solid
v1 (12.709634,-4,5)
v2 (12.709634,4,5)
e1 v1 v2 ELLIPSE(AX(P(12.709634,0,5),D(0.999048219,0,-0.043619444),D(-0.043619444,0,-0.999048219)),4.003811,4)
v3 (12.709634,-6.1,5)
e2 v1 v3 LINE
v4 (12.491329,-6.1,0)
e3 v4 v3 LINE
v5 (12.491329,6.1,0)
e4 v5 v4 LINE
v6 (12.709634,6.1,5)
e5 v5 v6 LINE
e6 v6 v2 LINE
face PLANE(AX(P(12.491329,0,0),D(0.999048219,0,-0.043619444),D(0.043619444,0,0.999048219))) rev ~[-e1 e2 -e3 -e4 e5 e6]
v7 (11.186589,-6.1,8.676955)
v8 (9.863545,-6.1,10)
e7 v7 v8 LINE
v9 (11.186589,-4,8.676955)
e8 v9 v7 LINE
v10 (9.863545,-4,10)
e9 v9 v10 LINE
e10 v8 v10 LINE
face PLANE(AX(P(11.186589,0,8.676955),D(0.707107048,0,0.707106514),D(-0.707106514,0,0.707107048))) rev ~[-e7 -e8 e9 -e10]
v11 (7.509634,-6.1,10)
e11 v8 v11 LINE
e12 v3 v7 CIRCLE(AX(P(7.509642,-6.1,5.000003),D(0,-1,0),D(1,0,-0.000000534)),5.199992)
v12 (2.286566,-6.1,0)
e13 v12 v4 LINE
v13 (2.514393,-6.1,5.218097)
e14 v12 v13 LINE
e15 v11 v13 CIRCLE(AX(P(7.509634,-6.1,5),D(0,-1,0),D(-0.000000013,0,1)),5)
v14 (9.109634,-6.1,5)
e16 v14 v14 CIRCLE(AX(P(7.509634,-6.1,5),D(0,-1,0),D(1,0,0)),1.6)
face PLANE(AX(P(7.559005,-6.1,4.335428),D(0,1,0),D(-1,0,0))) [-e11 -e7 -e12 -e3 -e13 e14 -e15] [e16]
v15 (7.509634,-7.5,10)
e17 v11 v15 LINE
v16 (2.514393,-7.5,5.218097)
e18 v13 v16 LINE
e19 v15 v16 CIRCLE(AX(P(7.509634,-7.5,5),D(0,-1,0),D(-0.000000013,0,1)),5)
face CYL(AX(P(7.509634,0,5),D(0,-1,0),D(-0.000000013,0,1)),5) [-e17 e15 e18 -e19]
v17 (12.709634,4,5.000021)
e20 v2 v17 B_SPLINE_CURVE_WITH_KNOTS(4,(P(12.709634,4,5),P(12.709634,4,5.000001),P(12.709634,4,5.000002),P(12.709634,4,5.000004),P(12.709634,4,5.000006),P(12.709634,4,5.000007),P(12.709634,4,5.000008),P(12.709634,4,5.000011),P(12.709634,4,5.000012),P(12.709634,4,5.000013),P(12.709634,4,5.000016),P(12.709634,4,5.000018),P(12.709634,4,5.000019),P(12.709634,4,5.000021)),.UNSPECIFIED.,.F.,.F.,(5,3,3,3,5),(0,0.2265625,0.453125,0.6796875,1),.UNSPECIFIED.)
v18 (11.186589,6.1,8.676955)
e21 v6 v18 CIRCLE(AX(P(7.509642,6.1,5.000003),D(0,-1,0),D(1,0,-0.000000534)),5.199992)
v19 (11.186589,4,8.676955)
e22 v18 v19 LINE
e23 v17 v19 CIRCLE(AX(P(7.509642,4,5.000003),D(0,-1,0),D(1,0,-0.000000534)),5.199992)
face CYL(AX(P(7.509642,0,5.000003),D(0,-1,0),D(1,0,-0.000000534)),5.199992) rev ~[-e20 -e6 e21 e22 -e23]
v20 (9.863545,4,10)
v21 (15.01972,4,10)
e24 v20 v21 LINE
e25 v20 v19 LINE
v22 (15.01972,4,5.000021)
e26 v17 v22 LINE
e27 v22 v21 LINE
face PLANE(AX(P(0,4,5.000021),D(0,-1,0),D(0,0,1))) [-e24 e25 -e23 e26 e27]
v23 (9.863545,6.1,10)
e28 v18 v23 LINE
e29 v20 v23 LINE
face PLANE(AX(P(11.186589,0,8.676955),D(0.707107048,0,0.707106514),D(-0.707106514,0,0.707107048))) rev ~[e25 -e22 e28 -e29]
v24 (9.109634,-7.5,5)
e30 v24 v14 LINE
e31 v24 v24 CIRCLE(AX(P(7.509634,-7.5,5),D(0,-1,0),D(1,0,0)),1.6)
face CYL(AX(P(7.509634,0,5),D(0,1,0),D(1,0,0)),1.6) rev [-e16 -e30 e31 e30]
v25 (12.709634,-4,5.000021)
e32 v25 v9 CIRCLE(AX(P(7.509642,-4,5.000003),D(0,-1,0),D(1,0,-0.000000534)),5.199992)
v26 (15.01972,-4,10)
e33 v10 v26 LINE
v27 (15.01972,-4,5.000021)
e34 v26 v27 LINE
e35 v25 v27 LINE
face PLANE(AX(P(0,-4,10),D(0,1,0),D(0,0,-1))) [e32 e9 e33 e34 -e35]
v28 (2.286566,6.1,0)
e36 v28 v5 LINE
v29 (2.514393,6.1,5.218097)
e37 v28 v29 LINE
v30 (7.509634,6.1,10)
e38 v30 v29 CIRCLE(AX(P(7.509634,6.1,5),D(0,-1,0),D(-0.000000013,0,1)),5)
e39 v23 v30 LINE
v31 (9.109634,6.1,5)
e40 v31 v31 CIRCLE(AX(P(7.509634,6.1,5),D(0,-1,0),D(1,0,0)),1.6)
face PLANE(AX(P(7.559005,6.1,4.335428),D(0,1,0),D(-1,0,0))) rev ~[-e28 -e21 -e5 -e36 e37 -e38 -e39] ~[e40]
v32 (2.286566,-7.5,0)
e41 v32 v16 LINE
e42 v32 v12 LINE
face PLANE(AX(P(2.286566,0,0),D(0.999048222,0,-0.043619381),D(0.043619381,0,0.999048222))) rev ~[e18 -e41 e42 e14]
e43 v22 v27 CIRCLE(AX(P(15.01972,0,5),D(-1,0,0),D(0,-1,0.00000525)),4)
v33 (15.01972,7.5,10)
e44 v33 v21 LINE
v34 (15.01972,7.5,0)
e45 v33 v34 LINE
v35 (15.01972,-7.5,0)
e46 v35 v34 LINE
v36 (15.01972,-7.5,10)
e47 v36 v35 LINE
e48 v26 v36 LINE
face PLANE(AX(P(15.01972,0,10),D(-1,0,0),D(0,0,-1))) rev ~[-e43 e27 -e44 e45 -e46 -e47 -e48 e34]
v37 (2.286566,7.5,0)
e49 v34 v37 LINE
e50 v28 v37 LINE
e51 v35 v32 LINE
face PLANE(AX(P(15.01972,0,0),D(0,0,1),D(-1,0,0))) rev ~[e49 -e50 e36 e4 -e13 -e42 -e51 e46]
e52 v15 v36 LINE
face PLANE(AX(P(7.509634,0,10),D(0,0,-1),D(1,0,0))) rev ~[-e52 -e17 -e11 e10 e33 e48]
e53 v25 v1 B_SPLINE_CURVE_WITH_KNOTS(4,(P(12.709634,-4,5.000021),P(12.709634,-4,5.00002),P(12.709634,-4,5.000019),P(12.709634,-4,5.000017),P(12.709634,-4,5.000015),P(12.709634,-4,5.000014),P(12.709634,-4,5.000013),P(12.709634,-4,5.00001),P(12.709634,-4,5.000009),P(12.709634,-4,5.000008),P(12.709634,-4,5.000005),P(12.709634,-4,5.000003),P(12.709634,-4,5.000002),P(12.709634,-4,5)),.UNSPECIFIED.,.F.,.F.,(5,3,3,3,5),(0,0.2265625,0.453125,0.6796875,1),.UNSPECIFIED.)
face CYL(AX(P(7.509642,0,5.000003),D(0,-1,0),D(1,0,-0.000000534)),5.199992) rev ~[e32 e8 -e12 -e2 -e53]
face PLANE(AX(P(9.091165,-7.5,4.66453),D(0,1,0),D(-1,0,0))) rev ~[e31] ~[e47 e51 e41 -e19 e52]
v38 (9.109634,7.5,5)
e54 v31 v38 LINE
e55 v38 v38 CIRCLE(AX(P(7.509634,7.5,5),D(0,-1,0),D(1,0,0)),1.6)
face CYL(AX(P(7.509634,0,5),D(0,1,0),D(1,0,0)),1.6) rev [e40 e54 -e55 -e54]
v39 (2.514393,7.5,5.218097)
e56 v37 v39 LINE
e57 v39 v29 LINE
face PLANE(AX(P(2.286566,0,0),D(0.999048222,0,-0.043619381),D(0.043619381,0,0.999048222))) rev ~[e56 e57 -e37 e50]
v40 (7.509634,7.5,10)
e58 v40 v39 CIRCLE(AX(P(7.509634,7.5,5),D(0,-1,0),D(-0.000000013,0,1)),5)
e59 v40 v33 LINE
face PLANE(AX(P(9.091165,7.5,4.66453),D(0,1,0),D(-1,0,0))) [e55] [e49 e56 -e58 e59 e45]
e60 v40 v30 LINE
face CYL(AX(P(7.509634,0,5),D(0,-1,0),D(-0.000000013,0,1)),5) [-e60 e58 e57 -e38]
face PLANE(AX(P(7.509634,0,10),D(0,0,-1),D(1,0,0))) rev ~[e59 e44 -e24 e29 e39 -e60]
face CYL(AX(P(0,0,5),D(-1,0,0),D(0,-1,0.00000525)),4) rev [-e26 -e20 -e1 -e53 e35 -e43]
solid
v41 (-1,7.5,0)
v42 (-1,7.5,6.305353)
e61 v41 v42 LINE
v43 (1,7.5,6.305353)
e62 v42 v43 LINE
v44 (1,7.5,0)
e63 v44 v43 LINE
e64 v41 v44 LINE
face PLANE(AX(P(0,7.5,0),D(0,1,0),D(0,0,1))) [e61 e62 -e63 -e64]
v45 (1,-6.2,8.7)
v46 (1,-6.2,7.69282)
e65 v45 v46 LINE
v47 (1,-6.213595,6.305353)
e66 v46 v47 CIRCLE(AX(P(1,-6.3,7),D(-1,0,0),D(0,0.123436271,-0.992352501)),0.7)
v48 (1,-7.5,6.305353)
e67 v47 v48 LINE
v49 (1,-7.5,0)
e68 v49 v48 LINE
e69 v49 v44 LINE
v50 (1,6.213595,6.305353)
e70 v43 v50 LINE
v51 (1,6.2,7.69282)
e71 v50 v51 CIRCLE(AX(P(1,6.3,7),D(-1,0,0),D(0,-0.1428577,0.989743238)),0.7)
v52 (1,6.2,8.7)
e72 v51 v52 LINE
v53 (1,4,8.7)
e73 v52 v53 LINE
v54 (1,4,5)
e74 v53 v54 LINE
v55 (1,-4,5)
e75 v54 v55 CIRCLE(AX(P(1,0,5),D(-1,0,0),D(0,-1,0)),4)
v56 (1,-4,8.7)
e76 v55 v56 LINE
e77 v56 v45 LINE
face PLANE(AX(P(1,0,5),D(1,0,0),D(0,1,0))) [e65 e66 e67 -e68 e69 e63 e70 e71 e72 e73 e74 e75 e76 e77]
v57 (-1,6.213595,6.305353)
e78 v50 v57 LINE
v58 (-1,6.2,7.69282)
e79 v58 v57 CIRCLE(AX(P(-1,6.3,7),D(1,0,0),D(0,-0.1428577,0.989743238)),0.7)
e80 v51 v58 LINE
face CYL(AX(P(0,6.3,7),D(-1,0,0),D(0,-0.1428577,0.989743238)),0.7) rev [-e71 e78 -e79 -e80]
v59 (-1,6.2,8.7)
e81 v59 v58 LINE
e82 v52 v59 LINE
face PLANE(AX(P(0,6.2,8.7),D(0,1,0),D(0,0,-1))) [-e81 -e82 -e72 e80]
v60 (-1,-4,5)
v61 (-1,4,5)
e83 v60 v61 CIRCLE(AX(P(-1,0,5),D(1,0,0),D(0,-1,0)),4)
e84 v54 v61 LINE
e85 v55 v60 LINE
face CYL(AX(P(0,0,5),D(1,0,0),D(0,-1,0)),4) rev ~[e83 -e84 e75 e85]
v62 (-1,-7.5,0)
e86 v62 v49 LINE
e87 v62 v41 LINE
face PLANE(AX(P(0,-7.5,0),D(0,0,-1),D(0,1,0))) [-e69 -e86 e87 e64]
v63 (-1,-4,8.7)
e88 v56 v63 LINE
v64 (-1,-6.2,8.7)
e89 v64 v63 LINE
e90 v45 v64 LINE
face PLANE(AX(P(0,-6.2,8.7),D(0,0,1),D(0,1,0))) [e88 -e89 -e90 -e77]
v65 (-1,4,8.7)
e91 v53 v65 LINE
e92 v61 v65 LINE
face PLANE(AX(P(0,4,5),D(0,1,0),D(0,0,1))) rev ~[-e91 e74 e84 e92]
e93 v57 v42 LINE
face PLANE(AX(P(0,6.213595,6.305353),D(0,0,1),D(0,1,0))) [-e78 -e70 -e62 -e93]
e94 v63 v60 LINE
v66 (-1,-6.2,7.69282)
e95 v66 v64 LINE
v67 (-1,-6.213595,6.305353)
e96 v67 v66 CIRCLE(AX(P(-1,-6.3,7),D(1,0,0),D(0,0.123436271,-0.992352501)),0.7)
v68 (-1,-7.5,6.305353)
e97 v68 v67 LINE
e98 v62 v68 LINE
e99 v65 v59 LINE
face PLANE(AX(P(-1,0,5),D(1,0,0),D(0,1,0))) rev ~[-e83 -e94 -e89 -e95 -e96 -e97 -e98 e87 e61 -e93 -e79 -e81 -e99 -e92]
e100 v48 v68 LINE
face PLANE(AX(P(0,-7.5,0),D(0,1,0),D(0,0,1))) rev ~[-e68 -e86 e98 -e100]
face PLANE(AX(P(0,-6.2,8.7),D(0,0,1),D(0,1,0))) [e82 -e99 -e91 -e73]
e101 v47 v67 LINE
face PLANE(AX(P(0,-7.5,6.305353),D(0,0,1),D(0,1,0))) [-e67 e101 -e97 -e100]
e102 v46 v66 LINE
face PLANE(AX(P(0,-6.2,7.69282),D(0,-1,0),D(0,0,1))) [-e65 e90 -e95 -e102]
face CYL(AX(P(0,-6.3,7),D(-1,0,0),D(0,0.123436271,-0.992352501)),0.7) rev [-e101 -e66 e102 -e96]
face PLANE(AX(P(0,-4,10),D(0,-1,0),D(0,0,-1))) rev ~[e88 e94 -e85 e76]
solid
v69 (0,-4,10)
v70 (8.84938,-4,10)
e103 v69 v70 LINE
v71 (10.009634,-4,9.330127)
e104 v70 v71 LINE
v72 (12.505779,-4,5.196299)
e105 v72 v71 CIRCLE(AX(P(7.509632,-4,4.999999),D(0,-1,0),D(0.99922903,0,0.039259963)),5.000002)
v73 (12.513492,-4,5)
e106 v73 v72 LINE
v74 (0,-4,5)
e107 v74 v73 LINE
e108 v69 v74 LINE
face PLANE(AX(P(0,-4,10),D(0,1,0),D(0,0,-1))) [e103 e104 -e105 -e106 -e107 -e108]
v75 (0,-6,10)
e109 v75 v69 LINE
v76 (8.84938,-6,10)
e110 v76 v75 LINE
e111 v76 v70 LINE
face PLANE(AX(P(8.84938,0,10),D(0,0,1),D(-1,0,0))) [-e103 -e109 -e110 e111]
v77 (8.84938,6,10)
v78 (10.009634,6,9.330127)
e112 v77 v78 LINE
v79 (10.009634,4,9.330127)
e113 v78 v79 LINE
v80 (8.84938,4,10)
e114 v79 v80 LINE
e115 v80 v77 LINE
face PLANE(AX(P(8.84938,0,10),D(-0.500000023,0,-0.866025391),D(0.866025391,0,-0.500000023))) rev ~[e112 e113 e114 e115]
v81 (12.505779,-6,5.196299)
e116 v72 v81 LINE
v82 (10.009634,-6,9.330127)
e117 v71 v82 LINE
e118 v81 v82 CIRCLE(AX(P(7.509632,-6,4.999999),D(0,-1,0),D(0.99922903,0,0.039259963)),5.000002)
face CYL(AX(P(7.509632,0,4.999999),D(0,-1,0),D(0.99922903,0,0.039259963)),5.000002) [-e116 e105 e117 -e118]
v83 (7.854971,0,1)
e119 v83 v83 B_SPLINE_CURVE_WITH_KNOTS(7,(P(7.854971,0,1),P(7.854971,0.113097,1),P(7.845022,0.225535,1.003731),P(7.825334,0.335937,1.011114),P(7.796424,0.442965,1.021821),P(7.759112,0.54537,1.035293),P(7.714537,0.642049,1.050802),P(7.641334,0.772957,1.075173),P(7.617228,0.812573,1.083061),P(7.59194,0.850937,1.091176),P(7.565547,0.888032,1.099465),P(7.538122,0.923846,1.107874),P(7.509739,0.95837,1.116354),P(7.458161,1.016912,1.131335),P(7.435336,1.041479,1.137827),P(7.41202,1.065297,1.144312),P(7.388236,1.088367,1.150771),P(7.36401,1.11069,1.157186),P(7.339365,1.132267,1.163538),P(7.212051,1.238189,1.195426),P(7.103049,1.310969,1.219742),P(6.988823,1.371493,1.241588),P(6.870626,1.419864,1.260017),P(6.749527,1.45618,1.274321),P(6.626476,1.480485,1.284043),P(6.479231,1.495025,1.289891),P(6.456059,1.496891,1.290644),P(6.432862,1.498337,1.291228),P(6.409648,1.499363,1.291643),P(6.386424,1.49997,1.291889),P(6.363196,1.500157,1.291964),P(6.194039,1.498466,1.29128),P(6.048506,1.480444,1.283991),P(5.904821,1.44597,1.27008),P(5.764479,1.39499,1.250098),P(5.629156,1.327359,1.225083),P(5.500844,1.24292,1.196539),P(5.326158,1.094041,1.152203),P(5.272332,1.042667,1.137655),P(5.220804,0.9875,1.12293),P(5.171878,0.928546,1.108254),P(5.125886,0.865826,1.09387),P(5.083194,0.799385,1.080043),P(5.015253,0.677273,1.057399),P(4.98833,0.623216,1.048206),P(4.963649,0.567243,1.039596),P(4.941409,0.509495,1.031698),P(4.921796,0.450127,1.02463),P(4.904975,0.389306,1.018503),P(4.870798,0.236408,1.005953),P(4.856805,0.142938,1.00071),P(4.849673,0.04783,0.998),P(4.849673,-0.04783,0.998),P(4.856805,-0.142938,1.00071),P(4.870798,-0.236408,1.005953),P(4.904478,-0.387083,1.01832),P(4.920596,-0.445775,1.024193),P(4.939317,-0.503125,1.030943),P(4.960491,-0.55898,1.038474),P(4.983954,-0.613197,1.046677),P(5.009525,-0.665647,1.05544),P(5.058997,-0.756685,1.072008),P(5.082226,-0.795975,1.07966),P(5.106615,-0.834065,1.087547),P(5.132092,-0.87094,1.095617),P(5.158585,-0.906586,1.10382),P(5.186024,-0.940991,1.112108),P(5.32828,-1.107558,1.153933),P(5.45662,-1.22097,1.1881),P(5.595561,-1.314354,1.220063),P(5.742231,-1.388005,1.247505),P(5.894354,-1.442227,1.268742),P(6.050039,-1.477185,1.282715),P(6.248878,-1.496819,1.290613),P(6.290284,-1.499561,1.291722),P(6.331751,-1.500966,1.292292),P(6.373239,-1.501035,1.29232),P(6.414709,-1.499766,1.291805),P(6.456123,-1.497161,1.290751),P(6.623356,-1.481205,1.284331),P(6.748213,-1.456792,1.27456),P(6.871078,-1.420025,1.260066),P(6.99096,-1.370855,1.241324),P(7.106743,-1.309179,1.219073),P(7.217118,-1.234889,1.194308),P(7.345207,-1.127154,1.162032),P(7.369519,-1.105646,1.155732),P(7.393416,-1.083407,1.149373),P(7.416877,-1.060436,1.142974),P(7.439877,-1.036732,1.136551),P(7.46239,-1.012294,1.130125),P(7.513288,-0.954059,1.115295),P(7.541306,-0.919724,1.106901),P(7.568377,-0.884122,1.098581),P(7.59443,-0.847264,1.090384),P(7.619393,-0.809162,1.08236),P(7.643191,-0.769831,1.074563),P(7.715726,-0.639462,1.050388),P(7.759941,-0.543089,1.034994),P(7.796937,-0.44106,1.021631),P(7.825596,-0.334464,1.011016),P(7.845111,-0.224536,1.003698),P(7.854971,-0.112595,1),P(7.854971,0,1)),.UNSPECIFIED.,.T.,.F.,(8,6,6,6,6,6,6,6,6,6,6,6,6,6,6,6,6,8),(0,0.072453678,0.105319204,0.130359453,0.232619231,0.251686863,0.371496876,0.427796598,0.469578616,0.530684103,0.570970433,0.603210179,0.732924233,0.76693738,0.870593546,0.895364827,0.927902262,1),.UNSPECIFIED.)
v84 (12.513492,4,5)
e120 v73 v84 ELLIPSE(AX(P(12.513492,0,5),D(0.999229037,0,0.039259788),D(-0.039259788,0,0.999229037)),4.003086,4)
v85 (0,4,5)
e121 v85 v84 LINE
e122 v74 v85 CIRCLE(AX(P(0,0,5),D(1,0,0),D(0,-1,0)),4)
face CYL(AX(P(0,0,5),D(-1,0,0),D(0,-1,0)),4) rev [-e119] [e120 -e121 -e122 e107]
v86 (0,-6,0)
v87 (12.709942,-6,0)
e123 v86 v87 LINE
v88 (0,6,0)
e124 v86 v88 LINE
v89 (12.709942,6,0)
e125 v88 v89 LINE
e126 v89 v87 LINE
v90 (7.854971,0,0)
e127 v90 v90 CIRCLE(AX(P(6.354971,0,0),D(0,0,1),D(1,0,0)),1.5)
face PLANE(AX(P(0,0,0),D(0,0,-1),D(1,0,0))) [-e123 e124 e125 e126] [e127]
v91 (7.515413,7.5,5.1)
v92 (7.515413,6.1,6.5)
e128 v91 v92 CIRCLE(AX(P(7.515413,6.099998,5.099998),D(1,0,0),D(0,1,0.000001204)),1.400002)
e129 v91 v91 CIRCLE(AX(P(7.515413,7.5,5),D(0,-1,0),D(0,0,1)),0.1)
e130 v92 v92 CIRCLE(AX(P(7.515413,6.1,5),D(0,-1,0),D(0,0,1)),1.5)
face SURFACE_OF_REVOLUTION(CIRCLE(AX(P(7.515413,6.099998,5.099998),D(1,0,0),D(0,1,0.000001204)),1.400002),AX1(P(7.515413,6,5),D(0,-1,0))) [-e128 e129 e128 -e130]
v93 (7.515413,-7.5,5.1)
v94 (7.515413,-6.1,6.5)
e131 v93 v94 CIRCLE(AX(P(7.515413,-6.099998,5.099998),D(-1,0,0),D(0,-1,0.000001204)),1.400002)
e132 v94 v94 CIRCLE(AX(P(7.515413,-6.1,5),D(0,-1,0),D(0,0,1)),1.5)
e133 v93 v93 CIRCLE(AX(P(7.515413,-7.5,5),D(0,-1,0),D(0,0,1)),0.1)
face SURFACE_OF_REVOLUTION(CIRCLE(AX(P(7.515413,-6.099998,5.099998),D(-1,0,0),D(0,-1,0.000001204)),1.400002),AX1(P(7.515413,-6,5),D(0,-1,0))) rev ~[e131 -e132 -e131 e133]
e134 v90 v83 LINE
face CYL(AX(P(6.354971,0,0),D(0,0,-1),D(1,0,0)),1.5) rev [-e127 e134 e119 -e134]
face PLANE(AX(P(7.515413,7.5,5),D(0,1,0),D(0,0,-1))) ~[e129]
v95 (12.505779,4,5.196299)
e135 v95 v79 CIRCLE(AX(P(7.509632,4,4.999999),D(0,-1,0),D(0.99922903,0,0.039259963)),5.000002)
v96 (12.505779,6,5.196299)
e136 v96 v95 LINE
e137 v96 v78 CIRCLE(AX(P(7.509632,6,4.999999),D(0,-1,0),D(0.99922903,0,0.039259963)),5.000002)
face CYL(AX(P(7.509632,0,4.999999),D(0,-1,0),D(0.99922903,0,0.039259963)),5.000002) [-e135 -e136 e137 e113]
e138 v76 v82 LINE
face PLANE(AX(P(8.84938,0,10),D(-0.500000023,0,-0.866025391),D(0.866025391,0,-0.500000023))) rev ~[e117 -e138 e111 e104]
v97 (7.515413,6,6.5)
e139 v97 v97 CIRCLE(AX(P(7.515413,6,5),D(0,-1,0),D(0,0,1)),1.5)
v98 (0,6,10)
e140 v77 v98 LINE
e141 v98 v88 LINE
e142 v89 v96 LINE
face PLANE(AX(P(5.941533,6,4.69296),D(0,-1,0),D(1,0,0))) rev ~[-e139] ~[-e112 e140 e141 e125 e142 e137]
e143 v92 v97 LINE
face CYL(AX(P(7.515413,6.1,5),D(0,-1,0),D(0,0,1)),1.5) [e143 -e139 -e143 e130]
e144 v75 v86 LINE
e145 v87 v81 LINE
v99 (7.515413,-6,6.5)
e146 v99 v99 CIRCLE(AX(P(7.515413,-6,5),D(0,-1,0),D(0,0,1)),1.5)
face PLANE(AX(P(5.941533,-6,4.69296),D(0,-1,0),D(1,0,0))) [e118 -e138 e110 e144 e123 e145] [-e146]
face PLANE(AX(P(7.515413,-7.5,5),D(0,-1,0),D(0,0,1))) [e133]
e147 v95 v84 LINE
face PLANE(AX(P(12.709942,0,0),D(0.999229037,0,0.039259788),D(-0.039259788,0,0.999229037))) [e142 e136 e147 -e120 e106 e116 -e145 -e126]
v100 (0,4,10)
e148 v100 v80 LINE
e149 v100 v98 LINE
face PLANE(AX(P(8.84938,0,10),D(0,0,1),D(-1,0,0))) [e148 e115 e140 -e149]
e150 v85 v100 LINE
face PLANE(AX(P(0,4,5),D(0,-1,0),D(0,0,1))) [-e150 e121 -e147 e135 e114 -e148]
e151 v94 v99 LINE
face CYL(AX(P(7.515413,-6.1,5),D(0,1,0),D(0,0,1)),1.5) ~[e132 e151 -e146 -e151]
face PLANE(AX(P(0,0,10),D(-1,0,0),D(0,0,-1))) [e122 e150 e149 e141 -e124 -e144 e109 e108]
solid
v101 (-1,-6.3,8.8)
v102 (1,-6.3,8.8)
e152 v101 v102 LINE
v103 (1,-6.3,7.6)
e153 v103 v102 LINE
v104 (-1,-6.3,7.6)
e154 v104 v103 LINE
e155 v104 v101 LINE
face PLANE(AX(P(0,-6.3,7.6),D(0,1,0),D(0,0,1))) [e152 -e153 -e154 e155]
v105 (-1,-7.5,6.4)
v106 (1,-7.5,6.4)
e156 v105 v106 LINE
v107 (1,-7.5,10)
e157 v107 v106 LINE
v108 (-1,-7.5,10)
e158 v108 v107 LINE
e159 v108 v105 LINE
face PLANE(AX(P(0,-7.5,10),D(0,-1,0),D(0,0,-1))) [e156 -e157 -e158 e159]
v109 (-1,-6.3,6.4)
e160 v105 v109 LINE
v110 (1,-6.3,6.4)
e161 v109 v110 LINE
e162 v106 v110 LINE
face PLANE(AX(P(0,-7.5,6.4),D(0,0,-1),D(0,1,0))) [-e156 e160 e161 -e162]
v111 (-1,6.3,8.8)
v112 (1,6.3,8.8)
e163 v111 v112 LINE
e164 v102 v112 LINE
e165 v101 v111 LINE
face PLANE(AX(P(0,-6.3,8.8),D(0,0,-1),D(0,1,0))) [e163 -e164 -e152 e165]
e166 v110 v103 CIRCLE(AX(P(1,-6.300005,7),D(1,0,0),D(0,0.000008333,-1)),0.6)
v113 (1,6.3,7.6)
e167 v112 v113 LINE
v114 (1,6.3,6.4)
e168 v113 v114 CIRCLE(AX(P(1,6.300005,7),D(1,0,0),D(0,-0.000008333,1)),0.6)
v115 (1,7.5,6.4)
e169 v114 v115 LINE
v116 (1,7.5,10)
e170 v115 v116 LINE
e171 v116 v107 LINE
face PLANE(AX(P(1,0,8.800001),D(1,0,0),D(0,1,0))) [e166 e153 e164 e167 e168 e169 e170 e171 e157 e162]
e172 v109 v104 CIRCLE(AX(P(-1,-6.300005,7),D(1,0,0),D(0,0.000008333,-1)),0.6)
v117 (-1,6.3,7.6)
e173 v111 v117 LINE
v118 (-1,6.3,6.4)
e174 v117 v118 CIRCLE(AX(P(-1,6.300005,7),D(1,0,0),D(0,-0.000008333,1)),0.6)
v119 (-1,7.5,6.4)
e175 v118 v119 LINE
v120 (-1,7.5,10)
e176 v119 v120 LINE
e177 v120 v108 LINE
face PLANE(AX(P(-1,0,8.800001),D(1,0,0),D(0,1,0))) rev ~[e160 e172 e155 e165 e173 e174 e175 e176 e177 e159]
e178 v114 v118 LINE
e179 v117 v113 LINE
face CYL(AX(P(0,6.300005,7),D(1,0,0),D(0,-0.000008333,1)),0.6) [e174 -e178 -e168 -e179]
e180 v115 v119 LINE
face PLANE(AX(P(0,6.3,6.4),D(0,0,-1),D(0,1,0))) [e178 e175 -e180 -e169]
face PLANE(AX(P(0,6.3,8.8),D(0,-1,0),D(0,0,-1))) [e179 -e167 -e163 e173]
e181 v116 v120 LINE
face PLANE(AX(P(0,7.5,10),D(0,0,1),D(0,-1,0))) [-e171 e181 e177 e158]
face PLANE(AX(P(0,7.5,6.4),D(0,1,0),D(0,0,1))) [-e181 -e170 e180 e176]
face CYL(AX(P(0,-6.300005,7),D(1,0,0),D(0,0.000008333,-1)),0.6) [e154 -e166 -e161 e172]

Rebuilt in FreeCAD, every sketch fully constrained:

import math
import FreeCAD as App
import Part
import Sketcher
Q = App.Units.Quantity


def add_polygon(sketch, points):
    """Adds a closed chain of lines whose ends are joined by coincident constraints."""
    first, n = sketch.GeometryCount, len(points)
    for a, b in zip(points, points[1:] + points[:1]):
        sketch.addGeometry(Part.LineSegment(App.Vector(*a, 0), App.Vector(*b, 0)), False)
    for i in range(n):
        sketch.addConstraint(Sketcher.Constraint("Coincident", first + i, 2, first + (i + 1) % n, 1))

doc = App.newDocument("Part")
params = doc.addObject("Spreadsheet::Sheet", "Params")
for row, (alias, value) in enumerate([
    ("sketch1_radius", "5.000002 mm"),
    ("sketch1_height", "10 mm"),
    ("pad1_length", "12 mm"),
    ("sketch2_radius", "1.400002 mm"),
    ("sketch2_width", "1.5 mm"),
    ("revolution_angle", "360 deg"),
    ("sketch3_radius", "4 mm"),
    ("sketch3_height", "5 mm"),
    ("sketch4_diameter", "3 mm"),
    ("sketch5_radius", "5 mm"),
    ("sketch5_diameter", "3.2 mm"),
    ("sketch5_height", "10 mm"),
    ("pad2_length", "15 mm"),
    ("sketch6_radius", "5 mm"),
    ("sketch6_diameter", "3.2 mm"),
    ("pocket3_length", "12.2 mm"),
    ("sketch7_radius", "4 mm"),
    ("sketch8_radius", "0.6 mm"),
    ("sketch8_width", "15 mm"),
    ("sketch8_width2", "1.2 mm"),
    ("sketch8_height", "3.6 mm"),
    ("pad3_length", "2 mm"),
    ("sketch9_width", "15 mm"),
    ("sketch9_height", "10 mm"),
    ("pad4_length", "2 mm"),
    ("sketch10_radius", "0.7 mm"),
    ("sketch10_width", "15 mm"),
    ("sketch10_width2", "12.4 mm"),
    ("sketch11_radius", "4 mm"),
    ("sketch11_height", "5 mm"),
], start=1):
    params.set(f"A{row}", alias)
    params.set(f"B{row}", "=" + value)
    params.setAlias(f"B{row}", alias)

body = doc.addObject("PartDesign::Body", "Body")

# Sketch on XZ plane
sketch1 = doc.addObject("Sketcher::SketchObject", "Sketch")
body.addObject(sketch1)
sketch1.AttachmentSupport = (doc.XZ_Plane, [""])
sketch1.MapMode = "FlatFace"
sketch1.addGeometry(Part.LineSegment(App.Vector(0, 0, 0), App.Vector(12.7, 0, 0)), False)
sketch1.addGeometry(Part.LineSegment(App.Vector(12.7, 0, 0), App.Vector(12.5, 5.2, 0)), False)
sketch1.addGeometry(Part.ArcOfCircle(Part.Circle(App.Vector(7.5, 5, 0), App.Vector(0, 0, 1), 5), math.radians(2), math.radians(60)), False)
sketch1.addGeometry(Part.LineSegment(App.Vector(10, 9.3, 0), App.Vector(8.8, 10, 0)), False)
sketch1.addGeometry(Part.LineSegment(App.Vector(8.8, 10, 0), App.Vector(0, 10, 0)), False)
sketch1.addGeometry(Part.LineSegment(App.Vector(0, 10, 0), App.Vector(0, 0, 0)), False)
sketch1.addConstraint(Sketcher.Constraint("Coincident", 0, 2, 1, 1))
sketch1.addConstraint(Sketcher.Constraint("Tangent", 1, 2, 2, 1))
sketch1.addConstraint(Sketcher.Constraint("Tangent", 2, 2, 3, 1))
sketch1.addConstraint(Sketcher.Constraint("Coincident", 3, 2, 4, 1))
sketch1.addConstraint(Sketcher.Constraint("Coincident", 4, 2, 5, 1))
sketch1.addConstraint(Sketcher.Constraint("Coincident", 5, 2, 0, 1))
sketch1.addConstraint(Sketcher.Constraint("Horizontal", 0))
sketch1.addConstraint(Sketcher.Constraint("Horizontal", 4))
sketch1.addConstraint(Sketcher.Constraint("Vertical", 5))
sketch1.addConstraint(Sketcher.Constraint("Coincident", 5, 2, -1, 1))
sketch1.addConstraint(Sketcher.Constraint("Radius", 2, 5.000002))
sketch1.addConstraint(Sketcher.Constraint("DistanceY", 5, 2, 5, 1, 10.0))
sketch1.addConstraint(Sketcher.Constraint("Angle", 3, Q("149.999998 deg")))
sketch1.addConstraint(Sketcher.Constraint("DistanceY", -1, 1, 2, 3, 4.999999))
sketch1.addConstraint(Sketcher.Constraint("Angle", 1, Q("92.249998 deg")))
sketch1.addConstraint(Sketcher.Constraint("DistanceX", 4, 2, 4, 1, 8.84938))
sketch1.setExpression("Constraints[10]", "Params.sketch1_radius")
sketch1.setExpression("Constraints[11]", "Params.sketch1_height")
pad1 = doc.addObject("PartDesign::Pad", "Pad")
body.addObject(pad1)
pad1.Profile = sketch1
pad1.setExpression("Length", "Params.pad1_length")
pad1.Midplane = True

# Sketch on YZ plane
sketch2 = doc.addObject("Sketcher::SketchObject", "Sketch001")
body.addObject(sketch2)
sketch2.AttachmentSupport = (doc.YZ_Plane, [""])
sketch2.MapMode = "FlatFace"
sketch2.AttachmentOffset = App.Placement(App.Vector(0, 0, 7.515413), App.Rotation())
sketch2.addGeometry(Part.LineSegment(App.Vector(-6, 5, 0), App.Vector(-7.5, 5, 0)), False)
sketch2.addGeometry(Part.LineSegment(App.Vector(-7.5, 5, 0), App.Vector(-7.5, 5.1, 0)), False)
sketch2.addGeometry(Part.ArcOfCircle(Part.Circle(App.Vector(-6.1, 5.1, 0), App.Vector(0, 0, 1), 1.4), math.radians(90), math.radians(180)), False)
sketch2.addGeometry(Part.LineSegment(App.Vector(-6.1, 6.5, 0), App.Vector(-6, 6.5, 0)), False)
sketch2.addGeometry(Part.LineSegment(App.Vector(-6, 6.5, 0), App.Vector(-6, 5, 0)), False)
sketch2.addGeometry(Part.LineSegment(App.Vector(-6, 5, 0), App.Vector(-7.5, 5, 0)), True)  # axis
sketch2.addConstraint(Sketcher.Constraint("Coincident", 0, 2, 1, 1))
sketch2.addConstraint(Sketcher.Constraint("Tangent", 1, 2, 2, 2))
sketch2.addConstraint(Sketcher.Constraint("Tangent", 2, 1, 3, 1))
sketch2.addConstraint(Sketcher.Constraint("Coincident", 3, 2, 4, 1))
sketch2.addConstraint(Sketcher.Constraint("Coincident", 4, 2, 0, 1))
sketch2.addConstraint(Sketcher.Constraint("Horizontal", 0))
sketch2.addConstraint(Sketcher.Constraint("Vertical", 1))
sketch2.addConstraint(Sketcher.Constraint("Horizontal", 3))
sketch2.addConstraint(Sketcher.Constraint("Vertical", 4))
sketch2.addConstraint(Sketcher.Constraint("Horizontal", 5))
sketch2.addConstraint(Sketcher.Constraint("Coincident", 5, 1, 4, 2))
sketch2.addConstraint(Sketcher.Constraint("Vertical", 1, 2, 5, 2))
sketch2.addConstraint(Sketcher.Constraint("Equal", 3, 1))
sketch2.addConstraint(Sketcher.Constraint("Radius", 2, 1.400002))
sketch2.addConstraint(Sketcher.Constraint("DistanceX", 0, 2, 0, 1, 1.5))
sketch2.addConstraint(Sketcher.Constraint("DistanceY", -1, 1, 0, 2, 5.0))
sketch2.addConstraint(Sketcher.Constraint("DistanceX", 3, 2, -1, 1, 6.0))
sketch2.setExpression("Constraints[13]", "Params.sketch2_radius")
sketch2.setExpression("Constraints[14]", "Params.sketch2_width")
revolution = doc.addObject("PartDesign::Revolution", "Revolution")
body.addObject(revolution)
revolution.Profile = sketch2
revolution.ReferenceAxis = (sketch2, ["Axis0"])
revolution.setExpression("Angle", "Params.revolution_angle")
doc.recompute()

mirrored = doc.addObject("PartDesign::Mirrored", "Mirrored")
body.addObject(mirrored)
mirrored.Originals = [revolution]
mirrored.MirrorPlane = (doc.XZ_Plane, [""])
body.Tip = mirrored

# Sketch on YZ plane
sketch3 = doc.addObject("Sketcher::SketchObject", "Sketch002")
body.addObject(sketch3)
sketch3.AttachmentSupport = (doc.YZ_Plane, [""])
sketch3.MapMode = "FlatFace"
sketch3.addGeometry(Part.ArcOfCircle(Part.Circle(App.Vector(0, 5, 0), App.Vector(0, 0, 1), 4), math.radians(180), math.radians(360)), False)
sketch3.addGeometry(Part.LineSegment(App.Vector(4, 5, 0), App.Vector(4, 10, 0)), False)
sketch3.addGeometry(Part.LineSegment(App.Vector(4, 10, 0), App.Vector(-4, 10, 0)), False)
sketch3.addGeometry(Part.LineSegment(App.Vector(-4, 10, 0), App.Vector(-4, 5, 0)), False)
sketch3.addConstraint(Sketcher.Constraint("Tangent", 0, 2, 1, 1))
sketch3.addConstraint(Sketcher.Constraint("Coincident", 1, 2, 2, 1))
sketch3.addConstraint(Sketcher.Constraint("Coincident", 2, 2, 3, 1))
sketch3.addConstraint(Sketcher.Constraint("Tangent", 3, 2, 0, 1))
sketch3.addConstraint(Sketcher.Constraint("Vertical", 1))
sketch3.addConstraint(Sketcher.Constraint("Horizontal", 2))
sketch3.addConstraint(Sketcher.Constraint("Vertical", 3))
sketch3.addConstraint(Sketcher.Constraint("PointOnObject", 0, 3, -2))
sketch3.addConstraint(Sketcher.Constraint("Radius", 0, 4.0))
sketch3.addConstraint(Sketcher.Constraint("DistanceY", 1, 1, 1, 2, 5.0))
sketch3.addConstraint(Sketcher.Constraint("DistanceY", -1, 1, 0, 3, 5.0))
sketch3.setExpression("Constraints[8]", "Params.sketch3_radius")
sketch3.setExpression("Constraints[9]", "Params.sketch3_height")
pocket1 = doc.addObject("PartDesign::Pocket", "Pocket")
body.addObject(pocket1)
pocket1.Profile = sketch3
pocket1.Type = "ThroughAll"
pocket1.Midplane = True

# Sketch on XY plane
sketch4 = doc.addObject("Sketcher::SketchObject", "Sketch003")
body.addObject(sketch4)
sketch4.AttachmentSupport = (doc.XY_Plane, [""])
sketch4.MapMode = "FlatFace"
sketch4.addGeometry(Part.Circle(App.Vector(6.4, 0, 0), App.Vector(0, 0, 1), 1.5), False)
sketch4.addConstraint(Sketcher.Constraint("PointOnObject", 0, 3, -1))
sketch4.addConstraint(Sketcher.Constraint("Diameter", 0, 3.0))
sketch4.addConstraint(Sketcher.Constraint("DistanceX", -1, 1, 0, 3, 6.354971))
sketch4.setExpression("Constraints[1]", "Params.sketch4_diameter")
pocket2 = doc.addObject("PartDesign::Pocket", "Pocket001")
body.addObject(pocket2)
pocket2.Profile = sketch4
pocket2.Type = "ThroughAll"
pocket2.Midplane = True
body2 = doc.addObject("PartDesign::Body", "Body001")

# Sketch on XZ plane
sketch5 = doc.addObject("Sketcher::SketchObject", "Sketch004")
body2.addObject(sketch5)
sketch5.AttachmentSupport = (doc.getObject("XZ_Plane001"), [""])
sketch5.MapMode = "FlatFace"
sketch5.addGeometry(Part.LineSegment(App.Vector(15, 0, 0), App.Vector(15, 10, 0)), False)
sketch5.addGeometry(Part.LineSegment(App.Vector(15, 10, 0), App.Vector(7.5, 10, 0)), False)
sketch5.addGeometry(Part.ArcOfCircle(Part.Circle(App.Vector(7.5, 5, 0), App.Vector(0, 0, 1), 5), math.radians(90), math.radians(177)), False)
sketch5.addGeometry(Part.LineSegment(App.Vector(2.5, 5.2, 0), App.Vector(2.3, 0, 0)), False)
sketch5.addGeometry(Part.LineSegment(App.Vector(2.3, 0, 0), App.Vector(15, 0, 0)), False)
sketch5.addGeometry(Part.Circle(App.Vector(7.5, 5, 0), App.Vector(0, 0, 1), 1.6), False)
sketch5.addConstraint(Sketcher.Constraint("Coincident", 0, 2, 1, 1))
sketch5.addConstraint(Sketcher.Constraint("Tangent", 1, 2, 2, 1))
sketch5.addConstraint(Sketcher.Constraint("Tangent", 2, 2, 3, 1))
sketch5.addConstraint(Sketcher.Constraint("Coincident", 3, 2, 4, 1))
sketch5.addConstraint(Sketcher.Constraint("Coincident", 4, 2, 0, 1))
sketch5.addConstraint(Sketcher.Constraint("Vertical", 0))
sketch5.addConstraint(Sketcher.Constraint("Horizontal", 1))
sketch5.addConstraint(Sketcher.Constraint("Horizontal", 4))
sketch5.addConstraint(Sketcher.Constraint("Coincident", 5, 3, 2, 3))
sketch5.addConstraint(Sketcher.Constraint("PointOnObject", 3, 2, -1))
sketch5.addConstraint(Sketcher.Constraint("Radius", 2, 5.0))
sketch5.addConstraint(Sketcher.Constraint("Diameter", 5, 3.2))
sketch5.addConstraint(Sketcher.Constraint("DistanceY", 0, 1, 0, 2, 10.0))
sketch5.addConstraint(Sketcher.Constraint("Angle", 3, Q("-92.5 deg")))
sketch5.addConstraint(Sketcher.Constraint("DistanceX", 1, 2, 1, 1, 7.510086))
sketch5.addConstraint(Sketcher.Constraint("DistanceX", -1, 1, 0, 2, 15.01972))
sketch5.setExpression("Constraints[10]", "Params.sketch5_radius")
sketch5.setExpression("Constraints[11]", "Params.sketch5_diameter")
sketch5.setExpression("Constraints[12]", "Params.sketch5_height")
pad2 = doc.addObject("PartDesign::Pad", "Pad001")
body2.addObject(pad2)
pad2.Profile = sketch5
pad2.setExpression("Length", "Params.pad2_length")
pad2.Midplane = True

# Sketch on XZ plane
sketch6 = doc.addObject("Sketcher::SketchObject", "Sketch005")
body2.addObject(sketch6)
sketch6.AttachmentSupport = (doc.getObject("XZ_Plane001"), [""])
sketch6.MapMode = "FlatFace"
sketch6.addGeometry(Part.LineSegment(App.Vector(2.5, 5.2, 0), App.Vector(2.3, 0, 0)), False)
sketch6.addGeometry(Part.LineSegment(App.Vector(2.3, 0, 0), App.Vector(12.5, 0, 0)), False)
sketch6.addGeometry(Part.LineSegment(App.Vector(12.5, 0, 0), App.Vector(12.7, 5, 0)), False)
sketch6.addGeometry(Part.ArcOfCircle(Part.Circle(App.Vector(7.5, 5, 0), App.Vector(0, 0, 1), 5.2), math.radians(0), math.radians(45)), False)
sketch6.addGeometry(Part.LineSegment(App.Vector(11.2, 8.7, 0), App.Vector(9.9, 10, 0)), False)
sketch6.addGeometry(Part.LineSegment(App.Vector(9.9, 10, 0), App.Vector(7.5, 10, 0)), False)
sketch6.addGeometry(Part.ArcOfCircle(Part.Circle(App.Vector(7.5, 5, 0), App.Vector(0, 0, 1), 5), math.radians(90), math.radians(177)), False)
sketch6.addGeometry(Part.Circle(App.Vector(7.5, 5, 0), App.Vector(0, 0, 1), 1.6), False)
sketch6.addConstraint(Sketcher.Constraint("Coincident", 0, 2, 1, 1))
sketch6.addConstraint(Sketcher.Constraint("Coincident", 1, 2, 2, 1))
sketch6.addConstraint(Sketcher.Constraint("Coincident", 2, 2, 3, 1))
sketch6.addConstraint(Sketcher.Constraint("Tangent", 3, 2, 4, 1))
sketch6.addConstraint(Sketcher.Constraint("Coincident", 4, 2, 5, 1))
sketch6.addConstraint(Sketcher.Constraint("Tangent", 5, 2, 6, 1))
sketch6.addConstraint(Sketcher.Constraint("Tangent", 6, 2, 0, 1))
sketch6.addConstraint(Sketcher.Constraint("Horizontal", 1))
sketch6.addConstraint(Sketcher.Constraint("Horizontal", 5))
sketch6.addConstraint(Sketcher.Constraint("Coincident", 6, 3, 3, 3))
sketch6.addConstraint(Sketcher.Constraint("Coincident", 7, 3, 3, 3))
sketch6.addConstraint(Sketcher.Constraint("PointOnObject", 0, 2, -1))
sketch6.addConstraint(Sketcher.Constraint("Parallel", 0, 2))
sketch6.addConstraint(Sketcher.Constraint("Horizontal", 7, 3, 2, 2))
sketch6.addConstraint(Sketcher.Constraint("Radius", 6, 5.0))
sketch6.addConstraint(Sketcher.Constraint("Diameter", 7, 3.2))
sketch6.addConstraint(Sketcher.Constraint("DistanceY", -1, 1, 6, 3, 5.0))
sketch6.addConstraint(Sketcher.Constraint("Angle", 0, Q("-92.5 deg")))
sketch6.addConstraint(Sketcher.Constraint("DistanceX", 6, 3, 2, 2, 5.2))
sketch6.addConstraint(Sketcher.Constraint("DistanceX", 5, 2, 5, 1, 2.353911))
sketch6.addConstraint(Sketcher.Constraint("DistanceX", -1, 1, 3, 3, 7.509642))
sketch6.setExpression("Constraints[14]", "Params.sketch6_radius")
sketch6.setExpression("Constraints[15]", "Params.sketch6_diameter")
pocket3 = doc.addObject("PartDesign::Pocket", "Pocket002")
body2.addObject(pocket3)
pocket3.Profile = sketch6
pocket3.setExpression("Length", "Params.pocket3_length")
pocket3.Midplane = True

# Sketch on YZ plane
sketch7 = doc.addObject("Sketcher::SketchObject", "Sketch006")
body2.addObject(sketch7)
sketch7.AttachmentSupport = (doc.getObject("YZ_Plane001"), [""])
sketch7.MapMode = "FlatFace"
sketch7.addGeometry(Part.ArcOfCircle(Part.Circle(App.Vector(0, 5, 0), App.Vector(0, 0, 1), 4), math.radians(180), math.radians(360)), False)
sketch7.addGeometry(Part.LineSegment(App.Vector(4, 5, 0), App.Vector(4, 10, 0)), False)
sketch7.addGeometry(Part.LineSegment(App.Vector(4, 10, 0), App.Vector(-4, 10, 0)), False)
sketch7.addGeometry(Part.LineSegment(App.Vector(-4, 10, 0), App.Vector(-4, 5, 0)), False)
sketch7.addConstraint(Sketcher.Constraint("Coincident", 0, 2, 1, 1))
sketch7.addConstraint(Sketcher.Constraint("Coincident", 1, 2, 2, 1))
sketch7.addConstraint(Sketcher.Constraint("Coincident", 2, 2, 3, 1))
sketch7.addConstraint(Sketcher.Constraint("Coincident", 3, 2, 0, 1))
sketch7.addConstraint(Sketcher.Constraint("Vertical", 1))
sketch7.addConstraint(Sketcher.Constraint("Horizontal", 2))
sketch7.addConstraint(Sketcher.Constraint("Vertical", 3))
sketch7.addConstraint(Sketcher.Constraint("Symmetric", 0, 2, 3, 2, -2))
sketch7.addConstraint(Sketcher.Constraint("Radius", 0, 4.0))
sketch7.addConstraint(Sketcher.Constraint("DistanceY", -1, 1, 0, 3, 5.0))
sketch7.addConstraint(Sketcher.Constraint("DistanceY", -1, 1, 1, 2, 10.0))
sketch7.addConstraint(Sketcher.Constraint("DistanceY", 1, 1, 1, 2, 4.999979))
sketch7.setExpression("Constraints[8]", "Params.sketch7_radius")
pocket4 = doc.addObject("PartDesign::Pocket", "Pocket003")
body2.addObject(pocket4)
pocket4.Profile = sketch7
pocket4.Type = "ThroughAll"
pocket4.Midplane = True
body3 = doc.addObject("PartDesign::Body", "Body002")

# Sketch on YZ plane
sketch8 = doc.addObject("Sketcher::SketchObject", "Sketch007")
body3.addObject(sketch8)
sketch8.AttachmentSupport = (doc.getObject("YZ_Plane002"), [""])
sketch8.MapMode = "FlatFace"
sketch8.addGeometry(Part.LineSegment(App.Vector(7.5, 10, 0), App.Vector(-7.5, 10, 0)), False)
sketch8.addGeometry(Part.LineSegment(App.Vector(-7.5, 10, 0), App.Vector(-7.5, 6.4, 0)), False)
sketch8.addGeometry(Part.LineSegment(App.Vector(-7.5, 6.4, 0), App.Vector(-6.3, 6.4, 0)), False)
sketch8.addGeometry(Part.ArcOfCircle(Part.Circle(App.Vector(-6.3, 7, 0), App.Vector(0, 0, 1), 0.6), math.radians(-90), math.radians(90)), False)
sketch8.addGeometry(Part.LineSegment(App.Vector(-6.3, 7.6, 0), App.Vector(-6.3, 8.8, 0)), False)
sketch8.addGeometry(Part.LineSegment(App.Vector(-6.3, 8.8, 0), App.Vector(6.3, 8.8, 0)), False)
sketch8.addGeometry(Part.LineSegment(App.Vector(6.3, 8.8, 0), App.Vector(6.3, 7.6, 0)), False)
sketch8.addGeometry(Part.ArcOfCircle(Part.Circle(App.Vector(6.3, 7, 0), App.Vector(0, 0, 1), 0.6), math.radians(90), math.radians(270)), False)
sketch8.addGeometry(Part.LineSegment(App.Vector(6.3, 6.4, 0), App.Vector(7.5, 6.4, 0)), False)
sketch8.addGeometry(Part.LineSegment(App.Vector(7.5, 6.4, 0), App.Vector(7.5, 10, 0)), False)
sketch8.addConstraint(Sketcher.Constraint("Coincident", 0, 2, 1, 1))
sketch8.addConstraint(Sketcher.Constraint("Coincident", 1, 2, 2, 1))
sketch8.addConstraint(Sketcher.Constraint("Coincident", 2, 2, 3, 1))
sketch8.addConstraint(Sketcher.Constraint("Coincident", 3, 2, 4, 1))
sketch8.addConstraint(Sketcher.Constraint("Coincident", 4, 2, 5, 1))
sketch8.addConstraint(Sketcher.Constraint("Coincident", 5, 2, 6, 1))
sketch8.addConstraint(Sketcher.Constraint("Coincident", 6, 2, 7, 1))
sketch8.addConstraint(Sketcher.Constraint("Coincident", 7, 2, 8, 1))
sketch8.addConstraint(Sketcher.Constraint("Coincident", 8, 2, 9, 1))
sketch8.addConstraint(Sketcher.Constraint("Coincident", 9, 2, 0, 1))
sketch8.addConstraint(Sketcher.Constraint("Horizontal", 0))
sketch8.addConstraint(Sketcher.Constraint("Vertical", 1))
sketch8.addConstraint(Sketcher.Constraint("Horizontal", 2))
sketch8.addConstraint(Sketcher.Constraint("Vertical", 4))
sketch8.addConstraint(Sketcher.Constraint("Horizontal", 5))
sketch8.addConstraint(Sketcher.Constraint("Vertical", 6))
sketch8.addConstraint(Sketcher.Constraint("Horizontal", 8))
sketch8.addConstraint(Sketcher.Constraint("Vertical", 9))
sketch8.addConstraint(Sketcher.Constraint("Equal", 3, 7))
sketch8.addConstraint(Sketcher.Constraint("Symmetric", 3, 3, 7, 3, -2))
sketch8.addConstraint(Sketcher.Constraint("Vertical", 2, 2, 3, 2))
sketch8.addConstraint(Sketcher.Constraint("Vertical", 6, 2, 7, 2))
sketch8.addConstraint(Sketcher.Constraint("Equal", 2, 8))
sketch8.addConstraint(Sketcher.Constraint("Equal", 8, 4))
sketch8.addConstraint(Sketcher.Constraint("Radius", 3, 0.6))
sketch8.addConstraint(Sketcher.Constraint("DistanceX", 0, 2, 0, 1, 15.0))
sketch8.addConstraint(Sketcher.Constraint("DistanceX", 2, 1, 2, 2, 1.2))
sketch8.addConstraint(Sketcher.Constraint("DistanceY", 1, 2, 1, 1, 3.6))
sketch8.addConstraint(Sketcher.Constraint("DistanceY", -1, 1, 3, 3, 7.0))
sketch8.addConstraint(Sketcher.Constraint("DistanceX", 0, 2, -1, 1, 7.5))
sketch8.addConstraint(Sketcher.Constraint("DistanceX", 3, 3, 7, 3, 12.60001))
sketch8.setExpression("Constraints[24]", "Params.sketch8_radius")
sketch8.setExpression("Constraints[25]", "Params.sketch8_width")
sketch8.setExpression("Constraints[26]", "Params.sketch8_width2")
sketch8.setExpression("Constraints[27]", "Params.sketch8_height")
pad3 = doc.addObject("PartDesign::Pad", "Pad002")
body3.addObject(pad3)
pad3.Profile = sketch8
pad3.setExpression("Length", "Params.pad3_length")
pad3.Midplane = True
body4 = doc.addObject("PartDesign::Body", "Body003")

# Sketch on YZ plane
sketch9 = doc.addObject("Sketcher::SketchObject", "Sketch008")
body4.addObject(sketch9)
sketch9.AttachmentSupport = (doc.getObject("YZ_Plane003"), [""])
sketch9.MapMode = "FlatFace"
add_polygon(sketch9, [(-8, 10), (-8, 0), (8, 0), (8, 10)])  # lines 0-3
sketch9.addConstraint(Sketcher.Constraint("Vertical", 0))
sketch9.addConstraint(Sketcher.Constraint("Horizontal", 1))
sketch9.addConstraint(Sketcher.Constraint("Vertical", 2))
sketch9.addConstraint(Sketcher.Constraint("Horizontal", 3))
sketch9.addConstraint(Sketcher.Constraint("Symmetric", 0, 2, 1, 2, -1, 1))
sketch9.addConstraint(Sketcher.Constraint("DistanceX", 1, 1, 1, 2, 15.0))
sketch9.addConstraint(Sketcher.Constraint("DistanceY", 0, 2, 0, 1, 10.0))
sketch9.setExpression("Constraints[9]", "Params.sketch9_width")
sketch9.setExpression("Constraints[10]", "Params.sketch9_height")
pad4 = doc.addObject("PartDesign::Pad", "Pad003")
body4.addObject(pad4)
pad4.Profile = sketch9
pad4.setExpression("Length", "Params.pad4_length")
pad4.Midplane = True

# Sketch on YZ plane
sketch10 = doc.addObject("Sketcher::SketchObject", "Sketch009")
body4.addObject(sketch10)
sketch10.AttachmentSupport = (doc.getObject("YZ_Plane003"), [""])
sketch10.MapMode = "FlatFace"
sketch10.addGeometry(Part.LineSegment(App.Vector(7.5, 10, 0), App.Vector(-7.5, 10, 0)), False)
sketch10.addGeometry(Part.LineSegment(App.Vector(-7.5, 10, 0), App.Vector(-7.5, 6.3, 0)), False)
sketch10.addGeometry(Part.LineSegment(App.Vector(-7.5, 6.3, 0), App.Vector(-6.2, 6.3, 0)), False)
sketch10.addGeometry(Part.ArcOfCircle(Part.Circle(App.Vector(-6.3, 7, 0), App.Vector(0, 0, 1), 0.7), math.radians(-83), math.radians(82)), False)
sketch10.addGeometry(Part.LineSegment(App.Vector(-6.2, 7.7, 0), App.Vector(-6.2, 8.7, 0)), False)
sketch10.addGeometry(Part.LineSegment(App.Vector(-6.2, 8.7, 0), App.Vector(6.2, 8.7, 0)), False)
sketch10.addGeometry(Part.LineSegment(App.Vector(6.2, 8.7, 0), App.Vector(6.2, 7.7, 0)), False)
sketch10.addGeometry(Part.ArcOfCircle(Part.Circle(App.Vector(6.3, 7, 0), App.Vector(0, 0, 1), 0.7), math.radians(98), math.radians(263)), False)
sketch10.addGeometry(Part.LineSegment(App.Vector(6.2, 6.3, 0), App.Vector(7.5, 6.3, 0)), False)
sketch10.addGeometry(Part.LineSegment(App.Vector(7.5, 6.3, 0), App.Vector(7.5, 10, 0)), False)
sketch10.addConstraint(Sketcher.Constraint("Coincident", 0, 2, 1, 1))
sketch10.addConstraint(Sketcher.Constraint("Coincident", 1, 2, 2, 1))
sketch10.addConstraint(Sketcher.Constraint("Coincident", 2, 2, 3, 1))
sketch10.addConstraint(Sketcher.Constraint("Coincident", 3, 2, 4, 1))
sketch10.addConstraint(Sketcher.Constraint("Coincident", 4, 2, 5, 1))
sketch10.addConstraint(Sketcher.Constraint("Coincident", 5, 2, 6, 1))
sketch10.addConstraint(Sketcher.Constraint("Coincident", 6, 2, 7, 1))
sketch10.addConstraint(Sketcher.Constraint("Coincident", 7, 2, 8, 1))
sketch10.addConstraint(Sketcher.Constraint("Coincident", 8, 2, 9, 1))
sketch10.addConstraint(Sketcher.Constraint("Coincident", 9, 2, 0, 1))
sketch10.addConstraint(Sketcher.Constraint("Horizontal", 0))
sketch10.addConstraint(Sketcher.Constraint("Vertical", 1))
sketch10.addConstraint(Sketcher.Constraint("Horizontal", 2))
sketch10.addConstraint(Sketcher.Constraint("Vertical", 4))
sketch10.addConstraint(Sketcher.Constraint("Horizontal", 5))
sketch10.addConstraint(Sketcher.Constraint("Vertical", 6))
sketch10.addConstraint(Sketcher.Constraint("Horizontal", 8))
sketch10.addConstraint(Sketcher.Constraint("Vertical", 9))
sketch10.addConstraint(Sketcher.Constraint("Equal", 3, 7))
sketch10.addConstraint(Sketcher.Constraint("Symmetric", 3, 3, 7, 3, -2))
sketch10.addConstraint(Sketcher.Constraint("Symmetric", 1, 2, 8, 2, -2))
sketch10.addConstraint(Sketcher.Constraint("Horizontal", 3, 2, 6, 2))
sketch10.addConstraint(Sketcher.Constraint("Radius", 3, 0.7))
sketch10.addConstraint(Sketcher.Constraint("DistanceX", 0, 2, 0, 1, 15.0))
sketch10.addConstraint(Sketcher.Constraint("DistanceX", 5, 1, 5, 2, 12.4))
sketch10.addConstraint(Sketcher.Constraint("DistanceY", -1, 1, 3, 3, 7.0))
sketch10.addConstraint(Sketcher.Constraint("DistanceY", -1, 1, 0, 2, 10.0))
sketch10.addConstraint(Sketcher.Constraint("DistanceX", 3, 3, -1, 1, 6.3))
sketch10.addConstraint(Sketcher.Constraint("DistanceY", -1, 1, 4, 2, 8.7))
sketch10.addConstraint(Sketcher.Constraint("DistanceX", 2, 1, 2, 2, 1.286405))
sketch10.setExpression("Constraints[22]", "Params.sketch10_radius")
sketch10.setExpression("Constraints[23]", "Params.sketch10_width")
sketch10.setExpression("Constraints[24]", "Params.sketch10_width2")
pocket5 = doc.addObject("PartDesign::Pocket", "Pocket004")
body4.addObject(pocket5)
pocket5.Profile = sketch10
pocket5.Type = "ThroughAll"
pocket5.Midplane = True

# Sketch on YZ plane
sketch11 = doc.addObject("Sketcher::SketchObject", "Sketch010")
body4.addObject(sketch11)
sketch11.AttachmentSupport = (doc.getObject("YZ_Plane003"), [""])
sketch11.MapMode = "FlatFace"
sketch11.addGeometry(Part.ArcOfCircle(Part.Circle(App.Vector(0, 5, 0), App.Vector(0, 0, 1), 4), math.radians(180), math.radians(360)), False)
sketch11.addGeometry(Part.LineSegment(App.Vector(4, 5, 0), App.Vector(4, 10, 0)), False)
sketch11.addGeometry(Part.LineSegment(App.Vector(4, 10, 0), App.Vector(-4, 10, 0)), False)
sketch11.addGeometry(Part.LineSegment(App.Vector(-4, 10, 0), App.Vector(-4, 5, 0)), False)
sketch11.addConstraint(Sketcher.Constraint("Tangent", 0, 2, 1, 1))
sketch11.addConstraint(Sketcher.Constraint("Coincident", 1, 2, 2, 1))
sketch11.addConstraint(Sketcher.Constraint("Coincident", 2, 2, 3, 1))
sketch11.addConstraint(Sketcher.Constraint("Tangent", 3, 2, 0, 1))
sketch11.addConstraint(Sketcher.Constraint("Vertical", 1))
sketch11.addConstraint(Sketcher.Constraint("Horizontal", 2))
sketch11.addConstraint(Sketcher.Constraint("Vertical", 3))
sketch11.addConstraint(Sketcher.Constraint("PointOnObject", 0, 3, -2))
sketch11.addConstraint(Sketcher.Constraint("Radius", 0, 4.0))
sketch11.addConstraint(Sketcher.Constraint("DistanceY", 1, 1, 1, 2, 5.0))
sketch11.addConstraint(Sketcher.Constraint("DistanceY", -1, 1, 0, 3, 5.0))
sketch11.setExpression("Constraints[8]", "Params.sketch11_radius")
sketch11.setExpression("Constraints[9]", "Params.sketch11_height")
pocket6 = doc.addObject("PartDesign::Pocket", "Pocket005")
body4.addObject(pocket6)
pocket6.Profile = sketch11
pocket6.Type = "ThroughAll"
pocket6.Midplane = True

doc.recompute()
